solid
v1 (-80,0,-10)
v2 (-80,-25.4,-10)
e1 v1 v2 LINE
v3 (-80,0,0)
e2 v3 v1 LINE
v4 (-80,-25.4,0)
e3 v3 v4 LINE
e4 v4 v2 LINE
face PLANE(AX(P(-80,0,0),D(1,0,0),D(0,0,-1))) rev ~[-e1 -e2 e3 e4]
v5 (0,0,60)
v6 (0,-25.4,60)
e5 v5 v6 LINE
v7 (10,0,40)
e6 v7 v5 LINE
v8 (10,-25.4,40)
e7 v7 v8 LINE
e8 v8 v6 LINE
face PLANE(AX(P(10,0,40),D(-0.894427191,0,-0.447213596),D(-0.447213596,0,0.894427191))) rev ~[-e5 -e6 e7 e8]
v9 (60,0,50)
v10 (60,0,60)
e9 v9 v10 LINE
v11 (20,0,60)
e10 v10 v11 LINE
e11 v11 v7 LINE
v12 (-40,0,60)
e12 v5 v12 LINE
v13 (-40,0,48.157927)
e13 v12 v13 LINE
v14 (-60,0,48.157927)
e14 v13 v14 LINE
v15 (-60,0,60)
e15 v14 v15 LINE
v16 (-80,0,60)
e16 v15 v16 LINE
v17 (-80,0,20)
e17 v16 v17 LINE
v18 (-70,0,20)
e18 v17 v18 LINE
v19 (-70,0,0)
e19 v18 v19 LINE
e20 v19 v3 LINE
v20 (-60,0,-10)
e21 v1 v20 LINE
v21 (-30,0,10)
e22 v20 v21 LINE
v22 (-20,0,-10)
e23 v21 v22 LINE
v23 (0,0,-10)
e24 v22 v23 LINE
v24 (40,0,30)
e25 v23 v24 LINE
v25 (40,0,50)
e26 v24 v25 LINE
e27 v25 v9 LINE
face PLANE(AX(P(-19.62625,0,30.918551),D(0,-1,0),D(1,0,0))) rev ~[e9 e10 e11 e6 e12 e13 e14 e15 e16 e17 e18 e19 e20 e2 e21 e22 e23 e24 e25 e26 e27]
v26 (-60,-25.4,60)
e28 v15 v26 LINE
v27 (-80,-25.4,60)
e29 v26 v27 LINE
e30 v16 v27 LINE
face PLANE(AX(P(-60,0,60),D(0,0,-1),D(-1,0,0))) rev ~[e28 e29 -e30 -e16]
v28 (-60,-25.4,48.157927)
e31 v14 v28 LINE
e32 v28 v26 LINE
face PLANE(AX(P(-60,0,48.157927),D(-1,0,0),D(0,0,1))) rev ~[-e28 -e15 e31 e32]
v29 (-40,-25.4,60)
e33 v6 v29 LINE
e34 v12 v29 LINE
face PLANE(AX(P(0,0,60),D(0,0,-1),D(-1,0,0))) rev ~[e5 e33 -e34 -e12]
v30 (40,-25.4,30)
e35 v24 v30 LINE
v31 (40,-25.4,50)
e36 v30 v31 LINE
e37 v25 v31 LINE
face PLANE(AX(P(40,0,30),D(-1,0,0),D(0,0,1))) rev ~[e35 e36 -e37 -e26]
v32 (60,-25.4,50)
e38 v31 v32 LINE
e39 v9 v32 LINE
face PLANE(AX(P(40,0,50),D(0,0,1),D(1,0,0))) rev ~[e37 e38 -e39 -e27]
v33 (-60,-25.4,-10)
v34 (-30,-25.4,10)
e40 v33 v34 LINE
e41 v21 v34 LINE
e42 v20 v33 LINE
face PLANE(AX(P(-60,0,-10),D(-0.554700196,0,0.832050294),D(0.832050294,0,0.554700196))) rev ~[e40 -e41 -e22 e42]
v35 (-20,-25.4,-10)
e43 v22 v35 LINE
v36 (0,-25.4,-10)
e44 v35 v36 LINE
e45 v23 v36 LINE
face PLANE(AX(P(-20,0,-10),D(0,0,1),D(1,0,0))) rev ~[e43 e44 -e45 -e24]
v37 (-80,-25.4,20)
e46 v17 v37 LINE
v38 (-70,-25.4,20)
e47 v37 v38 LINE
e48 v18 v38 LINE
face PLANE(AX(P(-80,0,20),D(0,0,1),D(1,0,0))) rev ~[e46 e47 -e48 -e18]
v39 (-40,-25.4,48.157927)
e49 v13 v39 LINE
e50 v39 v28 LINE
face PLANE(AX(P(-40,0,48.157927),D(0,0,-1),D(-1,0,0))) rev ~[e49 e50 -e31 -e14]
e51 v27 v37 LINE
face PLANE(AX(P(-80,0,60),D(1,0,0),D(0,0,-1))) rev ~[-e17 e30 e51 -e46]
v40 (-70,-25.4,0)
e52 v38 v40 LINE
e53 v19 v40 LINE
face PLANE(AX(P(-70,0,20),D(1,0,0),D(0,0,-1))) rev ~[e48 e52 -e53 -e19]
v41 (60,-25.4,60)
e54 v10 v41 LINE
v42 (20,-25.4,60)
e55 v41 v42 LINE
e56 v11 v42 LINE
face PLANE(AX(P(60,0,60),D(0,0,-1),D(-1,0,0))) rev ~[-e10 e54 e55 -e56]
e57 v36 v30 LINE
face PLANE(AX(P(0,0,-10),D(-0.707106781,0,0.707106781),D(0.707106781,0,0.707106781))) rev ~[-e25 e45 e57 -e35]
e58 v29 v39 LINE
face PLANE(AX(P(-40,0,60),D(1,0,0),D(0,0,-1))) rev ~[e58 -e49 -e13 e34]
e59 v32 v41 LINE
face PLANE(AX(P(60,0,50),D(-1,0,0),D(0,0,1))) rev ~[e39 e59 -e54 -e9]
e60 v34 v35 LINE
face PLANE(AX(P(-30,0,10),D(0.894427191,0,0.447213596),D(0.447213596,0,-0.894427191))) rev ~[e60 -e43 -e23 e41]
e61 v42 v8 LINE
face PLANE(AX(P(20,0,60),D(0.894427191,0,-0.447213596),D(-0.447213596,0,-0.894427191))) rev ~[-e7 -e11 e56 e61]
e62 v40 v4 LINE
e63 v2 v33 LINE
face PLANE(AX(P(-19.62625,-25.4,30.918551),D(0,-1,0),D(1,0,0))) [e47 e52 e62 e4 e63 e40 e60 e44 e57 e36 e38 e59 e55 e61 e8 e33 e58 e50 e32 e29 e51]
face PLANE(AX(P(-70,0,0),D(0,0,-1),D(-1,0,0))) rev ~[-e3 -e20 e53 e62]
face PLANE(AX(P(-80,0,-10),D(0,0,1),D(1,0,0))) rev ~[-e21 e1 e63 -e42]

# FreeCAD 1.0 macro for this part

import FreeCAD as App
import Part
import Sketcher
from FreeCAD import Vector
Q = App.Units.Quantity

doc = App.newDocument("Part")
body = doc.addObject("PartDesign::Body", "Body")

# Sketch on XZ plane
sketch1 = body.newObject("Sketcher::SketchObject", "Sketch")
sketch1.AttachmentSupport = (doc.getObject("XZ_Plane"), [""])
sketch1.MapMode = "FlatFace"
sketch1.addGeometry(Part.LineSegment(Vector(-60, 60, 0), Vector(-80, 60, 0)), False)
sketch1.addGeometry(Part.LineSegment(Vector(-80, 60, 0), Vector(-80, 20, 0)), False)
sketch1.addGeometry(Part.LineSegment(Vector(-80, 20, 0), Vector(-70, 20, 0)), False)
sketch1.addGeometry(Part.LineSegment(Vector(-70, 20, 0), Vector(-70, 0, 0)), False)
sketch1.addGeometry(Part.LineSegment(Vector(-70, 0, 0), Vector(-80, 0, 0)), False)
sketch1.addGeometry(Part.LineSegment(Vector(-80, 0, 0), Vector(-80, -10, 0)), False)
sketch1.addGeometry(Part.LineSegment(Vector(-80, -10, 0), Vector(-60, -10, 0)), False)
sketch1.addGeometry(Part.LineSegment(Vector(-60, -10, 0), Vector(-30, 10, 0)), False)
sketch1.addGeometry(Part.LineSegment(Vector(-30, 10, 0), Vector(-20, -10, 0)), False)
sketch1.addGeometry(Part.LineSegment(Vector(-20, -10, 0), Vector(0, -10, 0)), False)
sketch1.addGeometry(Part.LineSegment(Vector(0, -10, 0), Vector(40, 30, 0)), False)
sketch1.addGeometry(Part.LineSegment(Vector(40, 30, 0), Vector(40, 50, 0)), False)
sketch1.addGeometry(Part.LineSegment(Vector(40, 50, 0), Vector(60, 50, 0)), False)
sketch1.addGeometry(Part.LineSegment(Vector(60, 50, 0), Vector(60, 60, 0)), False)
sketch1.addGeometry(Part.LineSegment(Vector(60, 60, 0), Vector(20, 60, 0)), False)
sketch1.addGeometry(Part.LineSegment(Vector(20, 60, 0), Vector(10, 40, 0)), False)
sketch1.addGeometry(Part.LineSegment(Vector(10, 40, 0), Vector(0, 60, 0)), False)
sketch1.addGeometry(Part.LineSegment(Vector(0, 60, 0), Vector(-40, 60, 0)), False)
sketch1.addGeometry(Part.LineSegment(Vector(-40, 60, 0), Vector(-40, 48.157927, 0)), False)
sketch1.addGeometry(Part.LineSegment(Vector(-40, 48.157927, 0), Vector(-60, 48.157927, 0)), False)
sketch1.addGeometry(Part.LineSegment(Vector(-60, 48.157927, 0), Vector(-60, 60, 0)), False)
sketch1.addConstraint(Sketcher.Constraint("Coincident", 0, 2, 1, 1))
sketch1.addConstraint(Sketcher.Constraint("Coincident", 1, 2, 2, 1))
sketch1.addConstraint(Sketcher.Constraint("Coincident", 2, 2, 3, 1))
sketch1.addConstraint(Sketcher.Constraint("Coincident", 3, 2, 4, 1))
sketch1.addConstraint(Sketcher.Constraint("Coincident", 4, 2, 5, 1))
sketch1.addConstraint(Sketcher.Constraint("Coincident", 5, 2, 6, 1))
sketch1.addConstraint(Sketcher.Constraint("Coincident", 6, 2, 7, 1))
sketch1.addConstraint(Sketcher.Constraint("Coincident", 7, 2, 8, 1))
sketch1.addConstraint(Sketcher.Constraint("Coincident", 8, 2, 9, 1))
sketch1.addConstraint(Sketcher.Constraint("Coincident", 9, 2, 10, 1))
sketch1.addConstraint(Sketcher.Constraint("Coincident", 10, 2, 11, 1))
sketch1.addConstraint(Sketcher.Constraint("Coincident", 11, 2, 12, 1))
sketch1.addConstraint(Sketcher.Constraint("Coincident", 12, 2, 13, 1))
sketch1.addConstraint(Sketcher.Constraint("Coincident", 13, 2, 14, 1))
sketch1.addConstraint(Sketcher.Constraint("Coincident", 14, 2, 15, 1))
sketch1.addConstraint(Sketcher.Constraint("Coincident", 15, 2, 16, 1))
sketch1.addConstraint(Sketcher.Constraint("Coincident", 16, 2, 17, 1))
sketch1.addConstraint(Sketcher.Constraint("Coincident", 17, 2, 18, 1))
sketch1.addConstraint(Sketcher.Constraint("Coincident", 18, 2, 19, 1))
sketch1.addConstraint(Sketcher.Constraint("Coincident", 19, 2, 20, 1))
sketch1.addConstraint(Sketcher.Constraint("Coincident", 20, 2, 0, 1))
sketch1.addConstraint(Sketcher.Constraint("Horizontal", 0))
sketch1.addConstraint(Sketcher.Constraint("Vertical", 1))
sketch1.addConstraint(Sketcher.Constraint("Horizontal", 2))
sketch1.addConstraint(Sketcher.Constraint("Vertical", 3))
sketch1.addConstraint(Sketcher.Constraint("Horizontal", 4))
sketch1.addConstraint(Sketcher.Constraint("Vertical", 5))
sketch1.addConstraint(Sketcher.Constraint("Horizontal", 6))
sketch1.addConstraint(Sketcher.Constraint("Horizontal", 9))
sketch1.addConstraint(Sketcher.Constraint("Vertical", 11))
sketch1.addConstraint(Sketcher.Constraint("Horizontal", 12))
sketch1.addConstraint(Sketcher.Constraint("Vertical", 13))
sketch1.addConstraint(Sketcher.Constraint("Horizontal", 14))
sketch1.addConstraint(Sketcher.Constraint("Horizontal", 17))
sketch1.addConstraint(Sketcher.Constraint("Vertical", 18))
sketch1.addConstraint(Sketcher.Constraint("Horizontal", 19))
sketch1.addConstraint(Sketcher.Constraint("Vertical", 20))
sketch1.addConstraint(Sketcher.Constraint("Symmetric", 13, 2, 20, 2, -2))
sketch1.addConstraint(Sketcher.Constraint("PointOnObject", 3, 2, -1))
sketch1.addConstraint(Sketcher.Constraint("PointOnObject", 9, 2, -2))
sketch1.addConstraint(Sketcher.Constraint("PointOnObject", 16, 2, -2))
sketch1.addConstraint(Sketcher.Constraint("Parallel", 8, 16))
sketch1.addConstraint(Sketcher.Constraint("Horizontal", 6, 2, 8, 2))
sketch1.addConstraint(Sketcher.Constraint("Horizontal", 14, 2, 16, 2))
sketch1.addConstraint(Sketcher.Constraint("Vertical", 1, 2, 4, 2))
sketch1.addConstraint(Sketcher.Constraint("Vertical", 6, 2, 19, 2))
sketch1.addConstraint(Sketcher.Constraint("Equal", 6, 9))
sketch1.addConstraint(Sketcher.Constraint("Equal", 9, 12))
sketch1.addConstraint(Sketcher.Constraint("Equal", 14, 17))
sketch1.addConstraint(Sketcher.Constraint("Equal", 12, 19))
sketch1.addConstraint(Sketcher.Constraint("Equal", 17, 1))
sketch1.addConstraint(Sketcher.Constraint("Equal", 19, 3))
sketch1.addConstraint(Sketcher.Constraint("Equal", 4, 5))
sketch1.addConstraint(Sketcher.Constraint("Equal", 3, 11))
sketch1.addConstraint(Sketcher.Constraint("Equal", 5, 13))
sketch1.addConstraint(Sketcher.Constraint("Equal", 8, 15))
sketch1.addConstraint(Sketcher.Constraint("Equal", 15, 16))
sketch1.addConstraint(Sketcher.Constraint("DistanceX", 0, 2, 0, 1, Q("20 mm")))
sketch1.addConstraint(Sketcher.Constraint("DistanceX", 2, 1, 2, 2, Q("10 mm")))
sketch1.addConstraint(Sketcher.Constraint("DistanceX", 14, 2, 14, 1, Q("40 mm")))
sketch1.addConstraint(Sketcher.Constraint("DistanceY", -1, 1, 7, 2, Q("10 mm")))
sketch1.addConstraint(Sketcher.Constraint("DistanceY", 18, 2, 18, 1, Q("11.842073 mm")))
pad1 = body.newObject("PartDesign::Pad", "Pad")
pad1.Profile = sketch1
pad1.Length = 25.4

doc.recompute()
